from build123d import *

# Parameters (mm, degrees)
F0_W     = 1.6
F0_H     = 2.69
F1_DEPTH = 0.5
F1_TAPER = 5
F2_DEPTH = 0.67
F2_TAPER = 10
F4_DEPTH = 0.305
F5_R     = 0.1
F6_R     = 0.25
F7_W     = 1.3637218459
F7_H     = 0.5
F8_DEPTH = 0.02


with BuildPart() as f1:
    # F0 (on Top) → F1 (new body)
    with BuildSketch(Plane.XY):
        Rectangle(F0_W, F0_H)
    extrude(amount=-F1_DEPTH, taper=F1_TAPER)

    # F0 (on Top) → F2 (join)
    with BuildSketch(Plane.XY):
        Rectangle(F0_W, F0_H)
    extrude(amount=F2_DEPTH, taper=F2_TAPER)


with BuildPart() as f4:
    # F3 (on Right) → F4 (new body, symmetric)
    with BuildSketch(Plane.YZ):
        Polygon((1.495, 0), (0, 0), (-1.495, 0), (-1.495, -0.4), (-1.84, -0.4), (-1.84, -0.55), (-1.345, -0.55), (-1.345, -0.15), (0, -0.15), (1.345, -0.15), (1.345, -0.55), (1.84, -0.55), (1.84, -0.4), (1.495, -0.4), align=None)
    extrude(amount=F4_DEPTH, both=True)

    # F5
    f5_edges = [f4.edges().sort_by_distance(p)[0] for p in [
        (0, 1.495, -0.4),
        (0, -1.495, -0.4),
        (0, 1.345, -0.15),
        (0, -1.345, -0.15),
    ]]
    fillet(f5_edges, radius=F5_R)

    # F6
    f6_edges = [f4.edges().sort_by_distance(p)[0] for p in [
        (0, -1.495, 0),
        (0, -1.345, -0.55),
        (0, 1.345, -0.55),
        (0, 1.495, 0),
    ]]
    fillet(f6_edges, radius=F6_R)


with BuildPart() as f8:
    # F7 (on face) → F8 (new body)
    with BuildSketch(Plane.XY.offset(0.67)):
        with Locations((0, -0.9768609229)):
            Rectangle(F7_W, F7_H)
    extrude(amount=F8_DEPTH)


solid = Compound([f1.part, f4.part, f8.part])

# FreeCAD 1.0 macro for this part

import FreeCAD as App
import Part
import Sketcher
from FreeCAD import Vector


def edges_at(feature, points):
    """Names of the edges that pass closest to the given points."""
    edges = feature.Shape.Edges
    near = lambda p: min(range(len(edges)), key=lambda i: edges[i].distToShape(Part.Vertex(*p))[0])
    return sorted({f"Edge{near(p) + 1}" for p in points})

doc = App.newDocument("Part")
params = doc.addObject("Spreadsheet::Sheet", "Params")
for row, (alias, value) in enumerate([
    ("sketch1_width", "1.6 mm"),
    ("sketch1_height", "2.69 mm"),
    ("pad1_length", "0.5 mm"),
    ("pad1_taper", "-5 deg"),
    ("sketch2_width", "1.6 mm"),
    ("sketch2_height", "2.69 mm"),
    ("pad2_length", "0.67 mm"),
    ("pad2_taper", "-10 deg"),
    ("sketch3_height", "0.4 mm"),
    ("sketch3_width", "2.99 mm"),
    ("sketch3_width2", "2.69 mm"),
    ("sketch3_height2", "0.15 mm"),
    ("pad3_length", "0.61 mm"),
    ("fillet_radius", "0.1 mm"),
    ("fillet2_radius", "0.25 mm"),
    ("sketch4_height", "0.5 mm"),
    ("pad4_length", "0.02 mm"),
], start=1):
    params.set(f"A{row}", alias)
    params.set(f"B{row}", "=" + value)
    params.setAlias(f"B{row}", alias)

body = doc.addObject("PartDesign::Body", "Body")

# Sketch on XY plane
sketch1 = body.newObject("Sketcher::SketchObject", "Sketch")
sketch1.AttachmentSupport = (doc.getObject("XY_Plane"), [""])
sketch1.MapMode = "FlatFace"
sketch1.addGeometry([
    Part.LineSegment(Vector(-0.8, 1.3, 0), Vector(-0.8, -1.3, 0)),
    Part.LineSegment(Vector(-0.8, -1.3, 0), Vector(0.8, -1.3, 0)),
    Part.LineSegment(Vector(0.8, -1.3, 0), Vector(0.8, 1.3, 0)),
    Part.LineSegment(Vector(0.8, 1.3, 0), Vector(-0.8, 1.3, 0)),
], False)
sketch1.addConstraint([
    Sketcher.Constraint("Coincident", 0, 2, 1, 1),
    Sketcher.Constraint("Coincident", 1, 2, 2, 1),
    Sketcher.Constraint("Coincident", 2, 2, 3, 1),
    Sketcher.Constraint("Coincident", 3, 2, 0, 1),
    Sketcher.Constraint("Vertical", 0),
    Sketcher.Constraint("Horizontal", 1),
    Sketcher.Constraint("Vertical", 2),
    Sketcher.Constraint("Horizontal", 3),
    Sketcher.Constraint("Symmetric", 0, 2, 2, 2, -1, 1),
    Sketcher.Constraint("DistanceX", 1, 1, 1, 2, 1.6),
    Sketcher.Constraint("DistanceY", 0, 2, 0, 1, 2.69),
])
sketch1.setExpression("Constraints[9]", "Params.sketch1_width")
sketch1.setExpression("Constraints[10]", "Params.sketch1_height")
pad1 = body.newObject("PartDesign::Pad", "Pad")
pad1.Profile = sketch1
pad1.setExpression("Length", "Params.pad1_length")
pad1.Reversed = True
pad1.setExpression("TaperAngle", "Params.pad1_taper")

# Sketch on XY plane
sketch2 = body.newObject("Sketcher::SketchObject", "Sketch001")
sketch2.AttachmentSupport = (doc.getObject("XY_Plane"), [""])
sketch2.MapMode = "FlatFace"
sketch2.addGeometry([
    Part.LineSegment(Vector(-0.8, 1.3, 0), Vector(-0.8, -1.3, 0)),
    Part.LineSegment(Vector(-0.8, -1.3, 0), Vector(0.8, -1.3, 0)),
    Part.LineSegment(Vector(0.8, -1.3, 0), Vector(0.8, 1.3, 0)),
    Part.LineSegment(Vector(0.8, 1.3, 0), Vector(-0.8, 1.3, 0)),
], False)
sketch2.addConstraint([
    Sketcher.Constraint("Coincident", 0, 2, 1, 1),
    Sketcher.Constraint("Coincident", 1, 2, 2, 1),
    Sketcher.Constraint("Coincident", 2, 2, 3, 1),
    Sketcher.Constraint("Coincident", 3, 2, 0, 1),
    Sketcher.Constraint("Vertical", 0),
    Sketcher.Constraint("Horizontal", 1),
    Sketcher.Constraint("Vertical", 2),
    Sketcher.Constraint("Horizontal", 3),
    Sketcher.Constraint("Symmetric", 0, 2, 2, 2, -1, 1),
    Sketcher.Constraint("DistanceX", 1, 1, 1, 2, 1.6),
    Sketcher.Constraint("DistanceY", 0, 2, 0, 1, 2.69),
])
sketch2.setExpression("Constraints[9]", "Params.sketch2_width")
sketch2.setExpression("Constraints[10]", "Params.sketch2_height")
pad2 = body.newObject("PartDesign::Pad", "Pad001")
pad2.Profile = sketch2
pad2.setExpression("Length", "Params.pad2_length")
pad2.setExpression("TaperAngle", "Params.pad2_taper")
body2 = doc.addObject("PartDesign::Body", "Body001")

# Sketch on YZ plane
sketch3 = body2.newObject("Sketcher::SketchObject", "Sketch002")
sketch3.AttachmentSupport = (doc.getObject("YZ_Plane001"), [""])
sketch3.MapMode = "FlatFace"
sketch3.addGeometry([
    Part.LineSegment(Vector(1.5, 0, 0), Vector(-1.5, 0, 0)),  # 0
    Part.LineSegment(Vector(-1.5, 0, 0), Vector(-1.5, -0.4, 0)),  # 1
    Part.LineSegment(Vector(-1.5, -0.4, 0), Vector(-1.84, -0.4, 0)),  # 2
    Part.LineSegment(Vector(-1.84, -0.4, 0), Vector(-1.84, -0.55, 0)),  # 3
    Part.LineSegment(Vector(-1.84, -0.55, 0), Vector(-1.34, -0.55, 0)),  # 4
    Part.LineSegment(Vector(-1.34, -0.55, 0), Vector(-1.34, -0.15, 0)),  # 5
    Part.LineSegment(Vector(-1.34, -0.15, 0), Vector(1.34, -0.15, 0)),  # 6
    Part.LineSegment(Vector(1.34, -0.15, 0), Vector(1.34, -0.55, 0)),  # 7
    Part.LineSegment(Vector(1.34, -0.55, 0), Vector(1.84, -0.55, 0)),  # 8
    Part.LineSegment(Vector(1.84, -0.55, 0), Vector(1.84, -0.4, 0)),  # 9
    Part.LineSegment(Vector(1.84, -0.4, 0), Vector(1.5, -0.4, 0)),  # 10
    Part.LineSegment(Vector(1.5, -0.4, 0), Vector(1.5, 0, 0)),  # 11
], False)
sketch3.addConstraint([
    Sketcher.Constraint("Coincident", 0, 2, 1, 1),
    Sketcher.Constraint("Coincident", 1, 2, 2, 1),
    Sketcher.Constraint("Coincident", 2, 2, 3, 1),
    Sketcher.Constraint("Coincident", 3, 2, 4, 1),
    Sketcher.Constraint("Coincident", 4, 2, 5, 1),
    Sketcher.Constraint("Coincident", 5, 2, 6, 1),
    Sketcher.Constraint("Coincident", 6, 2, 7, 1),
    Sketcher.Constraint("Coincident", 7, 2, 8, 1),
    Sketcher.Constraint("Coincident", 8, 2, 9, 1),
    Sketcher.Constraint("Coincident", 9, 2, 10, 1),
    Sketcher.Constraint("Coincident", 10, 2, 11, 1),
    Sketcher.Constraint("Coincident", 11, 2, 0, 1),
    Sketcher.Constraint("Horizontal", 0),
    Sketcher.Constraint("Vertical", 1),
    Sketcher.Constraint("Horizontal", 2),
    Sketcher.Constraint("Vertical", 3),
    Sketcher.Constraint("Horizontal", 4),
    Sketcher.Constraint("Vertical", 5),
    Sketcher.Constraint("Horizontal", 6),
    Sketcher.Constraint("Vertical", 7),
    Sketcher.Constraint("Horizontal", 8),
    Sketcher.Constraint("Vertical", 9),
    Sketcher.Constraint("Horizontal", 10),
    Sketcher.Constraint("Vertical", 11),
    Sketcher.Constraint("Symmetric", 0, 2, 11, 2, -1, 1),
    Sketcher.Constraint("Symmetric", 4, 2, 7, 2, -2),
    Sketcher.Constraint("Symmetric", 2, 2, 9, 2, -2),
    Sketcher.Constraint("Equal", 1, 5),
    Sketcher.Constraint("DistanceY", 1, 2, 1, 1, 0.4),
    Sketcher.Constraint("DistanceX", 0, 2, 0, 1, 2.99),
    Sketcher.Constraint("DistanceX", 6, 1, 6, 2, 2.69),
    Sketcher.Constraint("DistanceY", 3, 2, 3, 1, 0.15),
    Sketcher.Constraint("DistanceX", 2, 2, 2, 1, 0.345),
])
sketch3.setExpression("Constraints[28]", "Params.sketch3_height")
sketch3.setExpression("Constraints[29]", "Params.sketch3_width")
sketch3.setExpression("Constraints[30]", "Params.sketch3_width2")
sketch3.setExpression("Constraints[31]", "Params.sketch3_height2")
pad3 = body2.newObject("PartDesign::Pad", "Pad002")
pad3.Profile = sketch3
pad3.setExpression("Length", "Params.pad3_length")
pad3.Midplane = True
doc.recompute()

fillet = body2.newObject("PartDesign::Fillet", "Fillet")
fillet.Base = (pad3, edges_at(pad3, [
    (0, 1.495, -0.4),
    (0, -1.495, -0.4),
    (0, 1.345, -0.15),
    (0, -1.345, -0.15),
]))
fillet.setExpression("Radius", "Params.fillet_radius")
doc.recompute()

fillet2 = body2.newObject("PartDesign::Fillet", "Fillet001")
fillet2.Base = (fillet, edges_at(fillet, [
    (0, -1.495, 0),
    (0, -1.345, -0.55),
    (0, 1.345, -0.55),
    (0, 1.495, 0),
]))
fillet2.setExpression("Radius", "Params.fillet2_radius")
body3 = doc.addObject("PartDesign::Body", "Body002")

# Sketch on XY plane
sketch4 = body3.newObject("Sketcher::SketchObject", "Sketch003")
sketch4.AttachmentSupport = (doc.getObject("XY_Plane002"), [""])
sketch4.MapMode = "FlatFace"
sketch4.AttachmentOffset = App.Placement(Vector(0, 0, 0.67), App.Rotation())
sketch4.addGeometry([
    Part.LineSegment(Vector(-0.7, -0.7, 0), Vector(-0.7, -1.2, 0)),
    Part.LineSegment(Vector(-0.7, -1.2, 0), Vector(0.7, -1.2, 0)),
    Part.LineSegment(Vector(0.7, -1.2, 0), Vector(0.7, -0.7, 0)),
    Part.LineSegment(Vector(0.7, -0.7, 0), Vector(-0.7, -0.7, 0)),
], False)
sketch4.addConstraint([
    Sketcher.Constraint("Coincident", 0, 2, 1, 1),
    Sketcher.Constraint("Coincident", 1, 2, 2, 1),
    Sketcher.Constraint("Coincident", 2, 2, 3, 1),
    Sketcher.Constraint("Coincident", 3, 2, 0, 1),
    Sketcher.Constraint("Vertical", 0),
    Sketcher.Constraint("Horizontal", 1),
    Sketcher.Constraint("Vertical", 2),
    Sketcher.Constraint("Horizontal", 3),
    Sketcher.Constraint("DistanceY", 0, 2, 0, 1, 0.5),
    Sketcher.Constraint("DistanceX", 1, 1, 1, 2, 1.363722),
    Sketcher.Constraint("DistanceX", 0, 2, -1, 1, 0.681861),
    Sketcher.Constraint("DistanceY", 0, 2, -1, 1, 1.226861),
])
sketch4.setExpression("Constraints[8]", "Params.sketch4_height")
pad4 = body3.newObject("PartDesign::Pad", "Pad003")
pad4.Profile = sketch4
pad4.setExpression("Length", "Params.pad4_length")

doc.recompute()
